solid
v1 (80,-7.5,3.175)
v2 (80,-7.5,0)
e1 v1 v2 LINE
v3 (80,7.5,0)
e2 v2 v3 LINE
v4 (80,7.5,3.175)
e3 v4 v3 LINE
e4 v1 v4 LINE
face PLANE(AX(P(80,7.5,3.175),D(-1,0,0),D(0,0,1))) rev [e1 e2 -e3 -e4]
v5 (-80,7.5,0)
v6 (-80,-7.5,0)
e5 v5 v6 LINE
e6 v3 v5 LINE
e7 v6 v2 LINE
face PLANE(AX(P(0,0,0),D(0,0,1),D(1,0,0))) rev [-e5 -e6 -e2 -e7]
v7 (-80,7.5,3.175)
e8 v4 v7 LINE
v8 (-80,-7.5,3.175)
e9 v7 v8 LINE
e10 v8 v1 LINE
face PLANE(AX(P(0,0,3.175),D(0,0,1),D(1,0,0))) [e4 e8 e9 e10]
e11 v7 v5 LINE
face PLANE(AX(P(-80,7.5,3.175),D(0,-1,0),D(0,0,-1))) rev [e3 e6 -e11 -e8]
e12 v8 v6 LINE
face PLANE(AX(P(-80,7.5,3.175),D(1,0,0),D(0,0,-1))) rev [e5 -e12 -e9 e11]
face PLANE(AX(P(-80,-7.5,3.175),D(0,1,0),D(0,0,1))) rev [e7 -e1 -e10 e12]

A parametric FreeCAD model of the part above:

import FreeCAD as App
import Part
import Sketcher

V = App.Vector

doc = App.newDocument("Part")
body = doc.addObject("PartDesign::Body", "Body")

# Sketch on XY plane
sketch1 = body.newObject("Sketcher::SketchObject", "Sketch")
sketch1.AttachmentSupport = (doc.getObject("XY_Plane"), [""])
sketch1.MapMode = "FlatFace"
sketch1.addGeometry([
    Part.LineSegment(V(-80, 8, 0), V(-80, -8, 0)),
    Part.LineSegment(V(-80, -8, 0), V(80, -8, 0)),
    Part.LineSegment(V(80, -8, 0), V(80, 8, 0)),
    Part.LineSegment(V(80, 8, 0), V(-80, 8, 0)),
], False)
sketch1.addConstraint([
    Sketcher.Constraint("Coincident", 0, 2, 1, 1),
    Sketcher.Constraint("Coincident", 1, 2, 2, 1),
    Sketcher.Constraint("Coincident", 2, 2, 3, 1),
    Sketcher.Constraint("Coincident", 3, 2, 0, 1),
    Sketcher.Constraint("Vertical", 0),
    Sketcher.Constraint("Horizontal", 1),
    Sketcher.Constraint("Vertical", 2),
    Sketcher.Constraint("Horizontal", 3),
    Sketcher.Constraint("Symmetric", 0, 2, 2, 2, -1, 1),
    Sketcher.Constraint("DistanceX", 1, 1, 1, 2, 160.0),
    Sketcher.Constraint("DistanceY", 0, 2, 0, 1, 15.0),
])
pad1 = body.newObject("PartDesign::Pad", "Pad")
pad1.Profile = sketch1
pad1.Length = 3.175

doc.recompute()
